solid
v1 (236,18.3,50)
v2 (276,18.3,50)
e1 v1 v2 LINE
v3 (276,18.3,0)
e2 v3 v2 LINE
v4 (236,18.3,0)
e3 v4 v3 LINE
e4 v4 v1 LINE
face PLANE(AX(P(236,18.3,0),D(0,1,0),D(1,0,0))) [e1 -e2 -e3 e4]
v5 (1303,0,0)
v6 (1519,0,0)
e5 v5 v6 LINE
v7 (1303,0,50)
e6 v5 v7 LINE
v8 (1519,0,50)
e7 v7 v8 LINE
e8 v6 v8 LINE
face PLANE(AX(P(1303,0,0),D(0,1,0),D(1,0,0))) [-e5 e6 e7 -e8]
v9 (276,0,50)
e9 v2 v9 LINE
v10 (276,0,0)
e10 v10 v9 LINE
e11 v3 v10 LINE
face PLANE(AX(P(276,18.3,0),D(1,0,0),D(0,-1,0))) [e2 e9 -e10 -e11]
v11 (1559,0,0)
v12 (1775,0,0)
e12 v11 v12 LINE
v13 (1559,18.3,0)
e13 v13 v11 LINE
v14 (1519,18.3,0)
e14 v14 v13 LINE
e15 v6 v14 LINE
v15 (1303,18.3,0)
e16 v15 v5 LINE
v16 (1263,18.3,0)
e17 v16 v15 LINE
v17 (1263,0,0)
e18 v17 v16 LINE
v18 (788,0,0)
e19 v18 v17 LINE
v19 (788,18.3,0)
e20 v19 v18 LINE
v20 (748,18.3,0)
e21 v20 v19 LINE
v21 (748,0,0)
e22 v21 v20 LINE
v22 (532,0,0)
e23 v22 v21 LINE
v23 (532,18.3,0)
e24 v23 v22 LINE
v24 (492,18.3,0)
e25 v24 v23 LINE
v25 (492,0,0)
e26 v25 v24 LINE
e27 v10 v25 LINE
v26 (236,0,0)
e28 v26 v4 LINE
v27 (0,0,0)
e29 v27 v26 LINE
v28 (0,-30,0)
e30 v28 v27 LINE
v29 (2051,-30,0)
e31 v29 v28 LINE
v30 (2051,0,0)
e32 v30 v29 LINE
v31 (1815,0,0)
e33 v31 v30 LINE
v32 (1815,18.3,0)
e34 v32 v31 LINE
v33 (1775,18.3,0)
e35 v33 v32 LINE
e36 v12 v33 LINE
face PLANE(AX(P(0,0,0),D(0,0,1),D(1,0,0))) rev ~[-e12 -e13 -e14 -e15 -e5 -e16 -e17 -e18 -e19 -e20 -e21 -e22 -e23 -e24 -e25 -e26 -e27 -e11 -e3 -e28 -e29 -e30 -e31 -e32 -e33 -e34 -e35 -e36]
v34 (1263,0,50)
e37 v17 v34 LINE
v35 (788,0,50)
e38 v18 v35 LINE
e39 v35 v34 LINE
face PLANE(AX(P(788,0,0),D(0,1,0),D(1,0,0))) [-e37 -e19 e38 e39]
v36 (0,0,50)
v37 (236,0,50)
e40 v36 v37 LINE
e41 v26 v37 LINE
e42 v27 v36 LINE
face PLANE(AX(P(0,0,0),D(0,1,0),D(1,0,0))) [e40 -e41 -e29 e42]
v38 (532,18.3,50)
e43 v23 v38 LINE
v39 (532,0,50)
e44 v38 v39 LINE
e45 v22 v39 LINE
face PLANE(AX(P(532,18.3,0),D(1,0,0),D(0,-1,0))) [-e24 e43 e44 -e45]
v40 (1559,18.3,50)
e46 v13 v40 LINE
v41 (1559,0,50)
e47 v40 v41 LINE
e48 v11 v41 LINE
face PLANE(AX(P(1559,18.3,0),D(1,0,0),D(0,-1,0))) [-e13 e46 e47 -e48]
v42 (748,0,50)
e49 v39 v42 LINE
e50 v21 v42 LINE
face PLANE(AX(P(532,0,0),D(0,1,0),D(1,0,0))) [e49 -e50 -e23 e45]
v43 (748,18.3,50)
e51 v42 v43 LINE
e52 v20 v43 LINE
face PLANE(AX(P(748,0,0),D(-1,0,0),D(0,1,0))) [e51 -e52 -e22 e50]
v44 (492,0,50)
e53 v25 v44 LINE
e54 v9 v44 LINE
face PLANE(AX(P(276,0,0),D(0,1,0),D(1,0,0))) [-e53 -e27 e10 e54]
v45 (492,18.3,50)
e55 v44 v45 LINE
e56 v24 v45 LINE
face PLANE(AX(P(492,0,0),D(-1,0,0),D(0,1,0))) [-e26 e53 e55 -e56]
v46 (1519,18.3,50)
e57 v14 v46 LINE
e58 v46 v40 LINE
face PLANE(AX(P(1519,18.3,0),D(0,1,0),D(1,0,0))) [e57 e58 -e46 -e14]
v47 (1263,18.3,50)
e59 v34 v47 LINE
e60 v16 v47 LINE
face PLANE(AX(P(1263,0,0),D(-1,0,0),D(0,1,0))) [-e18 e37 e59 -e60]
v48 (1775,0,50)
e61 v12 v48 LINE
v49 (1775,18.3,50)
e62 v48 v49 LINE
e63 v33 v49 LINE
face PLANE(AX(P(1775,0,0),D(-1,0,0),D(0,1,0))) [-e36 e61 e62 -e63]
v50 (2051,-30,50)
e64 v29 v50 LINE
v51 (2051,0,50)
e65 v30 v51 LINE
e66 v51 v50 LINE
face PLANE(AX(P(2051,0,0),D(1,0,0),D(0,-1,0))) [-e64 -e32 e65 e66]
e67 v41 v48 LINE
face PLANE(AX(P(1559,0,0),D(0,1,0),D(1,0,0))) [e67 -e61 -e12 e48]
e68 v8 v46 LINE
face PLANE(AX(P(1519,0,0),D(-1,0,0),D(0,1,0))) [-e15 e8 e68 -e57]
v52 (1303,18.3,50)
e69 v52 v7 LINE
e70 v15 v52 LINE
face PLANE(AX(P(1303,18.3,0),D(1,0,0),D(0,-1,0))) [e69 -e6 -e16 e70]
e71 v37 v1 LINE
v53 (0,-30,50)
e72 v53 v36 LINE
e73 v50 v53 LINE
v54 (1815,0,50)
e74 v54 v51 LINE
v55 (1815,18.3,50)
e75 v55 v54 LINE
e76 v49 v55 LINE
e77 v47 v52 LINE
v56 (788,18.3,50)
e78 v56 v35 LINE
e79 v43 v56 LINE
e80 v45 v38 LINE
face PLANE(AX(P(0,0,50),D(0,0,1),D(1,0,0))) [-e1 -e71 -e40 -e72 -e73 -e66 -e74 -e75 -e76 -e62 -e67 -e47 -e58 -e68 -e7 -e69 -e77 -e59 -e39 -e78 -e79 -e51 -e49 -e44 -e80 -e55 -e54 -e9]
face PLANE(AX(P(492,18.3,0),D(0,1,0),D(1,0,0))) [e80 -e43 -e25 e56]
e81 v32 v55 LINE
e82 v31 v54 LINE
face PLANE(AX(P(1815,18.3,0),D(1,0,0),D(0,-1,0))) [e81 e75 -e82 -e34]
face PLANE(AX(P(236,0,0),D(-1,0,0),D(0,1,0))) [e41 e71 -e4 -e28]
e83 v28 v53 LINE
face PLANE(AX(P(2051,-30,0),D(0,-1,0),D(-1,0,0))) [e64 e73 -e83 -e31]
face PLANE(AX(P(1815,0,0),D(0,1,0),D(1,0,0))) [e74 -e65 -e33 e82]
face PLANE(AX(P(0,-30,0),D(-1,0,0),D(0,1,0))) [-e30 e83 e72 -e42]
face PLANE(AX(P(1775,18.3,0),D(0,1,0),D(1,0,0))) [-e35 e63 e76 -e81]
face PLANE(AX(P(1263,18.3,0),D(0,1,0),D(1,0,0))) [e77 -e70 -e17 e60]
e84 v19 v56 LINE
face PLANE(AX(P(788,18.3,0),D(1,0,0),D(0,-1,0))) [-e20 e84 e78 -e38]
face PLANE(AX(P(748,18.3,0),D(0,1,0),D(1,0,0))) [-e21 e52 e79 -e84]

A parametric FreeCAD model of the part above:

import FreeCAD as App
import Part
import Sketcher
Q = App.Units.Quantity

doc = App.newDocument("Part")
params = doc.addObject("Spreadsheet::Sheet", "Params")
for row, (alias, value) in enumerate([
    ("sketch1_width", "2051 mm"),
    ("sketch1_width2", "40 mm"),
    ("sketch1_height", "30 mm"),
    ("sketch1_height2", "18.3 mm"),
    ("sketch1_width3", "236 mm"),
    ("pad1_length", "50 mm"),
], start=1):
    params.set(f"A{row}", alias)
    params.set(f"B{row}", "=" + value)
    params.setAlias(f"B{row}", alias)

body = doc.addObject("PartDesign::Body", "Body")

sketch1 = body.newObject("Sketcher::SketchObject", "Sketch")
sketch1.AttachmentSupport = (doc.getObject("XY_Plane"), [""])
sketch1.MapMode = "FlatFace"
sketch1.addGeometry(Part.LineSegment(App.Vector(236, 0, 0), App.Vector(0, 0, 0)), False)
sketch1.addGeometry(Part.LineSegment(App.Vector(0, 0, 0), App.Vector(0, -30, 0)), False)
sketch1.addGeometry(Part.LineSegment(App.Vector(0, -30, 0), App.Vector(2051, -30, 0)), False)
sketch1.addGeometry(Part.LineSegment(App.Vector(2051, -30, 0), App.Vector(2051, 0, 0)), False)
sketch1.addGeometry(Part.LineSegment(App.Vector(2051, 0, 0), App.Vector(1815, 0, 0)), False)
sketch1.addGeometry(Part.LineSegment(App.Vector(1815, 0, 0), App.Vector(1815, 18, 0)), False)
sketch1.addGeometry(Part.LineSegment(App.Vector(1815, 18, 0), App.Vector(1775, 18, 0)), False)
sketch1.addGeometry(Part.LineSegment(App.Vector(1775, 18, 0), App.Vector(1775, 0, 0)), False)
sketch1.addGeometry(Part.LineSegment(App.Vector(1775, 0, 0), App.Vector(1559, 0, 0)), False)
sketch1.addGeometry(Part.LineSegment(App.Vector(1559, 0, 0), App.Vector(1559, 18, 0)), False)
sketch1.addGeometry(Part.LineSegment(App.Vector(1559, 18, 0), App.Vector(1519, 18, 0)), False)
sketch1.addGeometry(Part.LineSegment(App.Vector(1519, 18, 0), App.Vector(1519, 0, 0)), False)
sketch1.addGeometry(Part.LineSegment(App.Vector(1519, 0, 0), App.Vector(1303, 0, 0)), False)
sketch1.addGeometry(Part.LineSegment(App.Vector(1303, 0, 0), App.Vector(1303, 18, 0)), False)
sketch1.addGeometry(Part.LineSegment(App.Vector(1303, 18, 0), App.Vector(1263, 18, 0)), False)
sketch1.addGeometry(Part.LineSegment(App.Vector(1263, 18, 0), App.Vector(1263, 0, 0)), False)
sketch1.addGeometry(Part.LineSegment(App.Vector(1263, 0, 0), App.Vector(788, 0, 0)), False)
sketch1.addGeometry(Part.LineSegment(App.Vector(788, 0, 0), App.Vector(788, 18, 0)), False)
sketch1.addGeometry(Part.LineSegment(App.Vector(788, 18, 0), App.Vector(748, 18, 0)), False)
sketch1.addGeometry(Part.LineSegment(App.Vector(748, 18, 0), App.Vector(748, 0, 0)), False)
sketch1.addGeometry(Part.LineSegment(App.Vector(748, 0, 0), App.Vector(532, 0, 0)), False)
sketch1.addGeometry(Part.LineSegment(App.Vector(532, 0, 0), App.Vector(532, 18, 0)), False)
sketch1.addGeometry(Part.LineSegment(App.Vector(532, 18, 0), App.Vector(492, 18, 0)), False)
sketch1.addGeometry(Part.LineSegment(App.Vector(492, 18, 0), App.Vector(492, 0, 0)), False)
sketch1.addGeometry(Part.LineSegment(App.Vector(492, 0, 0), App.Vector(276, 0, 0)), False)
sketch1.addGeometry(Part.LineSegment(App.Vector(276, 0, 0), App.Vector(276, 18, 0)), False)
sketch1.addGeometry(Part.LineSegment(App.Vector(276, 18, 0), App.Vector(236, 18, 0)), False)
sketch1.addGeometry(Part.LineSegment(App.Vector(236, 18, 0), App.Vector(236, 0, 0)), False)
sketch1.addConstraint(Sketcher.Constraint("Coincident", 0, 2, 1, 1))
sketch1.addConstraint(Sketcher.Constraint("Coincident", 1, 2, 2, 1))
sketch1.addConstraint(Sketcher.Constraint("Coincident", 2, 2, 3, 1))
sketch1.addConstraint(Sketcher.Constraint("Coincident", 3, 2, 4, 1))
sketch1.addConstraint(Sketcher.Constraint("Coincident", 4, 2, 5, 1))
sketch1.addConstraint(Sketcher.Constraint("Coincident", 5, 2, 6, 1))
sketch1.addConstraint(Sketcher.Constraint("Coincident", 6, 2, 7, 1))
sketch1.addConstraint(Sketcher.Constraint("Coincident", 7, 2, 8, 1))
sketch1.addConstraint(Sketcher.Constraint("Coincident", 8, 2, 9, 1))
sketch1.addConstraint(Sketcher.Constraint("Coincident", 9, 2, 10, 1))
sketch1.addConstraint(Sketcher.Constraint("Coincident", 10, 2, 11, 1))
sketch1.addConstraint(Sketcher.Constraint("Coincident", 11, 2, 12, 1))
sketch1.addConstraint(Sketcher.Constraint("Coincident", 12, 2, 13, 1))
sketch1.addConstraint(Sketcher.Constraint("Coincident", 13, 2, 14, 1))
sketch1.addConstraint(Sketcher.Constraint("Coincident", 14, 2, 15, 1))
sketch1.addConstraint(Sketcher.Constraint("Coincident", 15, 2, 16, 1))
sketch1.addConstraint(Sketcher.Constraint("Coincident", 16, 2, 17, 1))
sketch1.addConstraint(Sketcher.Constraint("Coincident", 17, 2, 18, 1))
sketch1.addConstraint(Sketcher.Constraint("Coincident", 18, 2, 19, 1))
sketch1.addConstraint(Sketcher.Constraint("Coincident", 19, 2, 20, 1))
sketch1.addConstraint(Sketcher.Constraint("Coincident", 20, 2, 21, 1))
sketch1.addConstraint(Sketcher.Constraint("Coincident", 21, 2, 22, 1))
sketch1.addConstraint(Sketcher.Constraint("Coincident", 22, 2, 23, 1))
sketch1.addConstraint(Sketcher.Constraint("Coincident", 23, 2, 24, 1))
sketch1.addConstraint(Sketcher.Constraint("Coincident", 24, 2, 25, 1))
sketch1.addConstraint(Sketcher.Constraint("Coincident", 25, 2, 26, 1))
sketch1.addConstraint(Sketcher.Constraint("Coincident", 26, 2, 27, 1))
sketch1.addConstraint(Sketcher.Constraint("Coincident", 27, 2, 0, 1))
sketch1.addConstraint(Sketcher.Constraint("Horizontal", 0))
sketch1.addConstraint(Sketcher.Constraint("Vertical", 1))
sketch1.addConstraint(Sketcher.Constraint("Horizontal", 2))
sketch1.addConstraint(Sketcher.Constraint("Vertical", 3))
sketch1.addConstraint(Sketcher.Constraint("Horizontal", 4))
sketch1.addConstraint(Sketcher.Constraint("Vertical", 5))
sketch1.addConstraint(Sketcher.Constraint("Horizontal", 6))
sketch1.addConstraint(Sketcher.Constraint("Vertical", 7))
sketch1.addConstraint(Sketcher.Constraint("Horizontal", 8))
sketch1.addConstraint(Sketcher.Constraint("Vertical", 9))
sketch1.addConstraint(Sketcher.Constraint("Horizontal", 10))
sketch1.addConstraint(Sketcher.Constraint("Vertical", 11))
sketch1.addConstraint(Sketcher.Constraint("Horizontal", 12))
sketch1.addConstraint(Sketcher.Constraint("Vertical", 13))
sketch1.addConstraint(Sketcher.Constraint("Horizontal", 14))
sketch1.addConstraint(Sketcher.Constraint("Vertical", 15))
sketch1.addConstraint(Sketcher.Constraint("Horizontal", 16))
sketch1.addConstraint(Sketcher.Constraint("Vertical", 17))
sketch1.addConstraint(Sketcher.Constraint("Horizontal", 18))
sketch1.addConstraint(Sketcher.Constraint("Vertical", 19))
sketch1.addConstraint(Sketcher.Constraint("Horizontal", 20))
sketch1.addConstraint(Sketcher.Constraint("Vertical", 21))
sketch1.addConstraint(Sketcher.Constraint("Horizontal", 22))
sketch1.addConstraint(Sketcher.Constraint("Vertical", 23))
sketch1.addConstraint(Sketcher.Constraint("Horizontal", 24))
sketch1.addConstraint(Sketcher.Constraint("Vertical", 25))
sketch1.addConstraint(Sketcher.Constraint("Horizontal", 26))
sketch1.addConstraint(Sketcher.Constraint("Vertical", 27))
sketch1.addConstraint(Sketcher.Constraint("Coincident", 0, 2, -1, 1))
sketch1.addConstraint(Sketcher.Constraint("PointOnObject", 3, 2, -1))
sketch1.addConstraint(Sketcher.Constraint("PointOnObject", 7, 2, -1))
sketch1.addConstraint(Sketcher.Constraint("PointOnObject", 11, 2, -1))
sketch1.addConstraint(Sketcher.Constraint("PointOnObject", 15, 2, -1))
sketch1.addConstraint(Sketcher.Constraint("PointOnObject", 19, 2, -1))
sketch1.addConstraint(Sketcher.Constraint("PointOnObject", 23, 2, -1))
sketch1.addConstraint(Sketcher.Constraint("Horizontal", 6, 2, 9, 2))
sketch1.addConstraint(Sketcher.Constraint("Horizontal", 10, 2, 13, 2))
sketch1.addConstraint(Sketcher.Constraint("Horizontal", 14, 2, 17, 2))
sketch1.addConstraint(Sketcher.Constraint("Horizontal", 18, 2, 21, 2))
sketch1.addConstraint(Sketcher.Constraint("Horizontal", 22, 2, 25, 2))
sketch1.addConstraint(Sketcher.Constraint("Equal", 0, 4))
sketch1.addConstraint(Sketcher.Constraint("Equal", 6, 10))
sketch1.addConstraint(Sketcher.Constraint("Equal", 8, 12))
sketch1.addConstraint(Sketcher.Constraint("Equal", 10, 14))
sketch1.addConstraint(Sketcher.Constraint("Equal", 14, 18))
sketch1.addConstraint(Sketcher.Constraint("Equal", 12, 20))
sketch1.addConstraint(Sketcher.Constraint("Equal", 18, 22))
sketch1.addConstraint(Sketcher.Constraint("Equal", 20, 24))
sketch1.addConstraint(Sketcher.Constraint("Equal", 22, 26))
sketch1.addConstraint(Sketcher.Constraint("DistanceX", 2, 1, 2, 2, Q("2051 mm")))
sketch1.addConstraint(Sketcher.Constraint("DistanceX", 6, 2, 6, 1, Q("40 mm")))
sketch1.addConstraint(Sketcher.Constraint("DistanceY", 1, 2, 1, 1, Q("30 mm")))
sketch1.addConstraint(Sketcher.Constraint("DistanceY", 5, 1, 5, 2, Q("18.3 mm")))
sketch1.addConstraint(Sketcher.Constraint("DistanceX", 8, 2, 4, 2, Q("256 mm")))
sketch1.addConstraint(Sketcher.Constraint("DistanceX", 0, 2, 0, 1, Q("236 mm")))
sketch1.setExpression("Constraints[77]", "Params.sketch1_width")
sketch1.setExpression("Constraints[78]", "Params.sketch1_width2")
sketch1.setExpression("Constraints[79]", "Params.sketch1_height")
sketch1.setExpression("Constraints[80]", "Params.sketch1_height2")
sketch1.setExpression("Constraints[82]", "Params.sketch1_width3")
pad1 = body.newObject("PartDesign::Pad", "Pad")
pad1.Profile = sketch1
pad1.setExpression("Length", "Params.pad1_length")

doc.recompute()
